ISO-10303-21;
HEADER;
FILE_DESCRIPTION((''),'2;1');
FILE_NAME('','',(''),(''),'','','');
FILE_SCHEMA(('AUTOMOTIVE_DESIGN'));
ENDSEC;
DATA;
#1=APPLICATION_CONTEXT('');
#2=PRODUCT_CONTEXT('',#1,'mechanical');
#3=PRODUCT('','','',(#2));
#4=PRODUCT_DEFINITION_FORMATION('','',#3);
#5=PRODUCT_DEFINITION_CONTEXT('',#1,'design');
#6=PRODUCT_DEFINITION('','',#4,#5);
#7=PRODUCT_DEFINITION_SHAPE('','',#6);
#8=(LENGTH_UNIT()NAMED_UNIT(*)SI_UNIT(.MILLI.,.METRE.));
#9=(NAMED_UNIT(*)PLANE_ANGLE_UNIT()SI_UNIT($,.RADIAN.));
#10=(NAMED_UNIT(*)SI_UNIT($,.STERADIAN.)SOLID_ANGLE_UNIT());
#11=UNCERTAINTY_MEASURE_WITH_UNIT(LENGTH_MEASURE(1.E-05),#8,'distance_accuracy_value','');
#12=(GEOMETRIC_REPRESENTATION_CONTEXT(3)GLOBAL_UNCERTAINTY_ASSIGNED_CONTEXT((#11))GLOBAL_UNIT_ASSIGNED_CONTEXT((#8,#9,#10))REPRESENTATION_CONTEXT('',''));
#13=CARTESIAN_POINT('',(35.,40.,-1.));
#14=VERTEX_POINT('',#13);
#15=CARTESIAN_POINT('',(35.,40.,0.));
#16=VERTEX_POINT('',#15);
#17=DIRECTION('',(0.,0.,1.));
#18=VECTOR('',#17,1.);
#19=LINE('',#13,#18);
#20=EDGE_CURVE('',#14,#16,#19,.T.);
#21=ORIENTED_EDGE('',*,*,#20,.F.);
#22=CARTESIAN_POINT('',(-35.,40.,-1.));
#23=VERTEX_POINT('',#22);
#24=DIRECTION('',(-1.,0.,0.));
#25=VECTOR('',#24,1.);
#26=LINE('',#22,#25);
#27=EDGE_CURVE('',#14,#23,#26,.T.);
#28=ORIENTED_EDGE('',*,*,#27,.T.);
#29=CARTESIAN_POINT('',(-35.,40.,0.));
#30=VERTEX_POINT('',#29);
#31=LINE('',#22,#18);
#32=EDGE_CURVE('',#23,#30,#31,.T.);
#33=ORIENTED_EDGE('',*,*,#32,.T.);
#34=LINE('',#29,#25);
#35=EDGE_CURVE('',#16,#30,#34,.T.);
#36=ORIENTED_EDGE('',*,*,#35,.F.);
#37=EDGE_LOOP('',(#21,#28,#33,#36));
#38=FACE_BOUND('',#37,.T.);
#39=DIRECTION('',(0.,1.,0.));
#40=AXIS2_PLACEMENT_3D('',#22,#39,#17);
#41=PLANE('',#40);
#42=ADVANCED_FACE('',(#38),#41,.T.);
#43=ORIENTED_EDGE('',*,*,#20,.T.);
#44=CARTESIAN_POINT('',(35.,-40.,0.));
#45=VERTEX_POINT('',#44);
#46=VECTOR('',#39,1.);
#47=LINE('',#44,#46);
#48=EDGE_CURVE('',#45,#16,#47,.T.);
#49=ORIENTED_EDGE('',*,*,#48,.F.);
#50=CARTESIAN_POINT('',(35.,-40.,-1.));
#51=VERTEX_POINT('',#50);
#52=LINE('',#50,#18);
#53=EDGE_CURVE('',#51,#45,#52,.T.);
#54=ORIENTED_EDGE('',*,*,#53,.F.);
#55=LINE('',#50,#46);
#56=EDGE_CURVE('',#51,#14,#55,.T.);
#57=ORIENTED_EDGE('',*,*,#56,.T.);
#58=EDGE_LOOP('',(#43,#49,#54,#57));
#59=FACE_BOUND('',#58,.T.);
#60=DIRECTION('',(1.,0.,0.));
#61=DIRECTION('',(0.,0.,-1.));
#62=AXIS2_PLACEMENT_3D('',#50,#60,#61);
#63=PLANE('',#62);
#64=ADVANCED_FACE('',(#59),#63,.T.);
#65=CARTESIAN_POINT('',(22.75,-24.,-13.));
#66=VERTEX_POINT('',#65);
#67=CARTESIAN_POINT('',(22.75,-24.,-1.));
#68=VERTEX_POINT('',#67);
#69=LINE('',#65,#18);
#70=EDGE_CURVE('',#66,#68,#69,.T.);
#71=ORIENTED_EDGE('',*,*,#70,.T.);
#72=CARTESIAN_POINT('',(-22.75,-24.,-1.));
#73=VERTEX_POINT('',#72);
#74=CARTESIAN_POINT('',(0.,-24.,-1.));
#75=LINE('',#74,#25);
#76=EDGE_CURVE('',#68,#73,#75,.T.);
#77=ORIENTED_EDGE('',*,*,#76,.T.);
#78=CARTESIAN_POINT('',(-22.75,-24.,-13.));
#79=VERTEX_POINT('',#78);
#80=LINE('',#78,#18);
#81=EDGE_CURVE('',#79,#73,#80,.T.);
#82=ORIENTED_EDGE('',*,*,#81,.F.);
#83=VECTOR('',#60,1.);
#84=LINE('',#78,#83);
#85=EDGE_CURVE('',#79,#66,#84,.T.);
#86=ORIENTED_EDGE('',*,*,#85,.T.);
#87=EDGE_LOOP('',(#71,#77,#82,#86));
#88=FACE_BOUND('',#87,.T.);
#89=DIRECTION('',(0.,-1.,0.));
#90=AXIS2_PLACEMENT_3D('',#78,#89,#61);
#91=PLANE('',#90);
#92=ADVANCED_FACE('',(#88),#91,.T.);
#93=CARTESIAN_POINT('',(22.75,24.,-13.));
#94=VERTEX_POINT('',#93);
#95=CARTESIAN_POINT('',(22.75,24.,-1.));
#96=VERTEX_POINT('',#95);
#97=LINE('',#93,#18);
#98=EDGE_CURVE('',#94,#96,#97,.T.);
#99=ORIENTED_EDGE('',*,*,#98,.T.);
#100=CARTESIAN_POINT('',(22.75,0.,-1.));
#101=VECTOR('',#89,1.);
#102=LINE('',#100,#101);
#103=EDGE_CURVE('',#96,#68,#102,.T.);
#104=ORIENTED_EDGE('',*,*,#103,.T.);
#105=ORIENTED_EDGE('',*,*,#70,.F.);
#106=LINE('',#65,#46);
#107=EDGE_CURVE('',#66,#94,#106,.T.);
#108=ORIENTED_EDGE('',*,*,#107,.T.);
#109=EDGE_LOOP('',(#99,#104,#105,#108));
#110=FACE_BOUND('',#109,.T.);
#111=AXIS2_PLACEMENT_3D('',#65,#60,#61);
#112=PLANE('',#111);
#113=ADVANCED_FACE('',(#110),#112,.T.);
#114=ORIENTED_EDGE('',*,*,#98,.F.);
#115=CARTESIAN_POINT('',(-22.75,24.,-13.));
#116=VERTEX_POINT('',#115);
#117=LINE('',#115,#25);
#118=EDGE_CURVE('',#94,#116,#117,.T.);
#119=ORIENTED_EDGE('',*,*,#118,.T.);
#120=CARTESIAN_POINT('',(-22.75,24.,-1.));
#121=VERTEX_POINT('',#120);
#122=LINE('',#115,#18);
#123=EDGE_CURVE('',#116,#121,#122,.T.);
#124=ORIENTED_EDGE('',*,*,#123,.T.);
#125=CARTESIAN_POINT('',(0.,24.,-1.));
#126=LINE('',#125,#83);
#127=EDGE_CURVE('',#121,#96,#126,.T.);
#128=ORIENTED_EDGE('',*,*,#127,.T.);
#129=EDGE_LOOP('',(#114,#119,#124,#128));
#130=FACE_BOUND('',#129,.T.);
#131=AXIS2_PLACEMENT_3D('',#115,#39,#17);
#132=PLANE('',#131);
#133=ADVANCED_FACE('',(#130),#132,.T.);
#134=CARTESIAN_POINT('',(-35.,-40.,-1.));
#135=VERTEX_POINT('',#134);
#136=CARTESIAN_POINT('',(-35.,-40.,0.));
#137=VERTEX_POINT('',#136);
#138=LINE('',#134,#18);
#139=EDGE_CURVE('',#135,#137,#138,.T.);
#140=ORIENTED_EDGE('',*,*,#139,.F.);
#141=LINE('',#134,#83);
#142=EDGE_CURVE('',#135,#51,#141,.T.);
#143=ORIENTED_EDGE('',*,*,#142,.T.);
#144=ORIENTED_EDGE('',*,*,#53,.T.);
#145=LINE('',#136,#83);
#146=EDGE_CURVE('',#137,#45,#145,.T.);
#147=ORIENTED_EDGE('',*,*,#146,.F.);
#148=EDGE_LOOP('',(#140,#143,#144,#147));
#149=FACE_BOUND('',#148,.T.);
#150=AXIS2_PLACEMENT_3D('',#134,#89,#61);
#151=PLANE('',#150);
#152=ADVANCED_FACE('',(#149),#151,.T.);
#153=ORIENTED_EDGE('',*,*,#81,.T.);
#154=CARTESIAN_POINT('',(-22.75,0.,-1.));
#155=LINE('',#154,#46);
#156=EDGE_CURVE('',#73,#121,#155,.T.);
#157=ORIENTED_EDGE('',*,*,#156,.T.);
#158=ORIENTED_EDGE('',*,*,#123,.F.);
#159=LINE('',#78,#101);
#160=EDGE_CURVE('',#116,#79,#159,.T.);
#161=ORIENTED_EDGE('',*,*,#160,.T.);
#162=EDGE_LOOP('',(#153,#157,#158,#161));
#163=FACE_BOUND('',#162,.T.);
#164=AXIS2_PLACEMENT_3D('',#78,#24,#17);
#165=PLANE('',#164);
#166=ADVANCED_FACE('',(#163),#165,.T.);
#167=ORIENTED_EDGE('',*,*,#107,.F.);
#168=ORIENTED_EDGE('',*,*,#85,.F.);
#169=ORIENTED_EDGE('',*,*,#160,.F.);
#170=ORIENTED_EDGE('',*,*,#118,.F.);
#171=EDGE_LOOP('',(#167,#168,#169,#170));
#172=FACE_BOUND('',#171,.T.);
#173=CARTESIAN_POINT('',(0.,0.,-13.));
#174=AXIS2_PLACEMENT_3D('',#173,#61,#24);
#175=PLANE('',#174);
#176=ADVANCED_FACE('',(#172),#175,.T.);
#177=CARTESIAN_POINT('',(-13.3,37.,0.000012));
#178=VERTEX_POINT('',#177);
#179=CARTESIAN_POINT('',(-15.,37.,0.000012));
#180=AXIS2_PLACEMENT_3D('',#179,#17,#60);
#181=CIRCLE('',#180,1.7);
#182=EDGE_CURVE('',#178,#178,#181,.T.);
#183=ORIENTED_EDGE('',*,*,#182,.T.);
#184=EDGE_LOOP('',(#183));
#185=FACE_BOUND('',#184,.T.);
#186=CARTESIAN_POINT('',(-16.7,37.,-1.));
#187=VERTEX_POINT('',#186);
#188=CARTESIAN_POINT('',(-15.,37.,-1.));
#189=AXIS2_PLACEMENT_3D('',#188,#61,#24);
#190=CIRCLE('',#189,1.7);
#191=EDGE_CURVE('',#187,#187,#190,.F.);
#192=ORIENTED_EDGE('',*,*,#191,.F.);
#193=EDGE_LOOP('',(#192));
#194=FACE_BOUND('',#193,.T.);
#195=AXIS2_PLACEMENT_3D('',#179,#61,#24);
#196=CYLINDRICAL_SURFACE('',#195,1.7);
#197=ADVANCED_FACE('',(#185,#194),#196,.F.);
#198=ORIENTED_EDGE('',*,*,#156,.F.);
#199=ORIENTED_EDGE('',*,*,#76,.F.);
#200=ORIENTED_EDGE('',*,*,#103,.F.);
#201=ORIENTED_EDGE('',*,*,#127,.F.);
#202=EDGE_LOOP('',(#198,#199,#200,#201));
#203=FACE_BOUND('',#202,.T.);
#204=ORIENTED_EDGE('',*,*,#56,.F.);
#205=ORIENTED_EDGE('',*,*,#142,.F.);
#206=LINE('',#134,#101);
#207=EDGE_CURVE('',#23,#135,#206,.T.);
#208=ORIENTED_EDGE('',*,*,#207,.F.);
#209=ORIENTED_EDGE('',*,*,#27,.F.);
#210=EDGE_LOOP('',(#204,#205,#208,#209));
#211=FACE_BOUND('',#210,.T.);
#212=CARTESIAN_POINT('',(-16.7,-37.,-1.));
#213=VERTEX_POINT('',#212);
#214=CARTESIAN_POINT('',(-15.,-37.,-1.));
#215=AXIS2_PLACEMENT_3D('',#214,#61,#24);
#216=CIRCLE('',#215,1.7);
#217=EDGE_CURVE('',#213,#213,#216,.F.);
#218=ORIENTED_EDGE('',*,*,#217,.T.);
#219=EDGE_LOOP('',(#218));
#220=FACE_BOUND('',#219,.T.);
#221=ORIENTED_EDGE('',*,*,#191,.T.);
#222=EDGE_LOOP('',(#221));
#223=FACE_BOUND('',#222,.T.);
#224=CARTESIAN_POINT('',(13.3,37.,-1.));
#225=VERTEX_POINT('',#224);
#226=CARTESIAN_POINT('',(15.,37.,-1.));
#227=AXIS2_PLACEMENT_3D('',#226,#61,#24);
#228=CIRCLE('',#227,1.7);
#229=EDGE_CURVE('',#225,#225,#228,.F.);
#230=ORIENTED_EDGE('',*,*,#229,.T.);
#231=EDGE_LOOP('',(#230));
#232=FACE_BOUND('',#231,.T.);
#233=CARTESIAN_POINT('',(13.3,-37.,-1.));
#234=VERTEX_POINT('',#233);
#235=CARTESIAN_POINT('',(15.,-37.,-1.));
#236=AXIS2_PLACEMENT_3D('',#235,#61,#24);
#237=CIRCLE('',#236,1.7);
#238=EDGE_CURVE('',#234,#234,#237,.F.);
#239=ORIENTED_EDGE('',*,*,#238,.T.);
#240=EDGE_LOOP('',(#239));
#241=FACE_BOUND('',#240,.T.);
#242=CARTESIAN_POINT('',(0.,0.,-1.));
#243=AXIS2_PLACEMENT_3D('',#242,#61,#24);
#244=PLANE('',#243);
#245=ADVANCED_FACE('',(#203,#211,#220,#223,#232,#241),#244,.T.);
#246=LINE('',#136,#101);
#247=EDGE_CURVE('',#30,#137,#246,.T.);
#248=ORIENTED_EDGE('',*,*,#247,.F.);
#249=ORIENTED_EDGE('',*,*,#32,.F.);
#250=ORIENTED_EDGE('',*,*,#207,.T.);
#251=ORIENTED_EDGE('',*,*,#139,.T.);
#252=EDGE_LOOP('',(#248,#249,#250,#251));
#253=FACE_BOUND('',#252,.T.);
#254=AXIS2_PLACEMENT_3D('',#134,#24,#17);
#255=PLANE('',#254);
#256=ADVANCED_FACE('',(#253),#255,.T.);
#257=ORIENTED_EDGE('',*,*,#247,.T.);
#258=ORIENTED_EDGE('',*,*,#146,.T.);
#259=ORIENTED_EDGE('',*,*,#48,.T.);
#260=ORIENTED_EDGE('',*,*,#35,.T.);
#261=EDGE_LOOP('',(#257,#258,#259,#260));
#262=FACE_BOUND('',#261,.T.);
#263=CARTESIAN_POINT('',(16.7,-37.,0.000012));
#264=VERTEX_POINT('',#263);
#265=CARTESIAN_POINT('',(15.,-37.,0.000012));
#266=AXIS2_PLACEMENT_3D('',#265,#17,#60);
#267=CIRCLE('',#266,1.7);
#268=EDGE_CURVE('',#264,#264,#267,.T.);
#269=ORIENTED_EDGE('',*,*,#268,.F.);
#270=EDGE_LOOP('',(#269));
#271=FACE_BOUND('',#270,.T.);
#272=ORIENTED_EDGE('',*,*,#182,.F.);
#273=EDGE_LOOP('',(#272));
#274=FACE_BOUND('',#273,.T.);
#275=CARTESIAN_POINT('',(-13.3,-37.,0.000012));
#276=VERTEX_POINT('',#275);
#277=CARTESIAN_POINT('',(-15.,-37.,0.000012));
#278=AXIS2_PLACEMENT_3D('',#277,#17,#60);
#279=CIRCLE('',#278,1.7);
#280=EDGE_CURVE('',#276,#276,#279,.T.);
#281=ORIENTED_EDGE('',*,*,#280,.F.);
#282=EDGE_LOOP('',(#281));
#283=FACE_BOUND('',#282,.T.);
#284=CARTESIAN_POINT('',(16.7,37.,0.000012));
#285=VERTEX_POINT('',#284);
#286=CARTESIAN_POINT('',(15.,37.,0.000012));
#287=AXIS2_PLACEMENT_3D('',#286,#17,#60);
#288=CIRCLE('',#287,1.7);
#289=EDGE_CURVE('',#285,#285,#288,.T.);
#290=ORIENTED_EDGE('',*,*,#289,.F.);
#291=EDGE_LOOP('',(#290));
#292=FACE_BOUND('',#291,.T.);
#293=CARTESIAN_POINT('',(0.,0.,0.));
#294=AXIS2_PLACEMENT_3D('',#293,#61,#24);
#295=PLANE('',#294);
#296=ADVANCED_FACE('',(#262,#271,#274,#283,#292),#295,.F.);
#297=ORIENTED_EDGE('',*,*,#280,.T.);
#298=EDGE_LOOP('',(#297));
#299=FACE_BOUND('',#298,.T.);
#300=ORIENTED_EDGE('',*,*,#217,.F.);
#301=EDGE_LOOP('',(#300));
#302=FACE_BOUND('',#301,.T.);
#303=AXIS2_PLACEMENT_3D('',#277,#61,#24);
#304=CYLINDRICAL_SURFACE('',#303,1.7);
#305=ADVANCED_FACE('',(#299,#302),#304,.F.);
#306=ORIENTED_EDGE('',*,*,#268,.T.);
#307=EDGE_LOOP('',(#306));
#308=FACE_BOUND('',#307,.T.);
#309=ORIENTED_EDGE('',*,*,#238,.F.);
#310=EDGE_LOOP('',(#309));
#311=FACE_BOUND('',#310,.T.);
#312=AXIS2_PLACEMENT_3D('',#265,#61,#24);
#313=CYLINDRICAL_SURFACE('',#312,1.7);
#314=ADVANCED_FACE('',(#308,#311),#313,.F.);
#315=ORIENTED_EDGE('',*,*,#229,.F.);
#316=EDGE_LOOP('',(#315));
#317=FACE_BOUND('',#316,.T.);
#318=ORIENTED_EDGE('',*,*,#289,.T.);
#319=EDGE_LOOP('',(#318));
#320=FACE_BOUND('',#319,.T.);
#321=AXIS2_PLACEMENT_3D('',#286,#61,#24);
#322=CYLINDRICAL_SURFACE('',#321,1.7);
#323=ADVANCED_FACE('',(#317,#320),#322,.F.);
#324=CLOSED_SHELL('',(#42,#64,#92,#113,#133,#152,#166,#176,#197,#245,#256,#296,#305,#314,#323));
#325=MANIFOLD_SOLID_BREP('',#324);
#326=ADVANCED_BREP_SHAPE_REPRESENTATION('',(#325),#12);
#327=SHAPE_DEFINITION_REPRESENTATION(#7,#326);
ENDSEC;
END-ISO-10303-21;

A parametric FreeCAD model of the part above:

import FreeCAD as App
import Part
import Sketcher
from FreeCAD import Vector

doc = App.newDocument("Part")
params = doc.addObject("Spreadsheet::Sheet", "Params")
for row, (alias, value) in enumerate([
    ("sketch1_width", "70 mm"),
    ("sketch1_height", "80 mm"),
    ("pad1_length", "1 mm"),
    ("sketch2_height", "48 mm"),
    ("sketch2_width", "45.5 mm"),
    ("pad2_length", "13 mm"),
    ("sketch3_diameter", "3.4 mm"),
], start=1):
    params.set(f"A{row}", alias)
    params.set(f"B{row}", "=" + value)
    params.setAlias(f"B{row}", alias)

body = doc.addObject("PartDesign::Body", "Body")

# Sketch on XY plane
sketch1 = body.newObject("Sketcher::SketchObject", "Sketch")
sketch1.AttachmentSupport = (doc.getObject("XY_Plane"), [""])
sketch1.MapMode = "FlatFace"
sketch1.addGeometry([
    Part.LineSegment(Vector(-35, 40, 0), Vector(-35, -40, 0)),
    Part.LineSegment(Vector(-35, -40, 0), Vector(35, -40, 0)),
    Part.LineSegment(Vector(35, -40, 0), Vector(35, 40, 0)),
    Part.LineSegment(Vector(35, 40, 0), Vector(-35, 40, 0)),
], False)
sketch1.addConstraint([
    Sketcher.Constraint("Coincident", 0, 2, 1, 1),
    Sketcher.Constraint("Coincident", 1, 2, 2, 1),
    Sketcher.Constraint("Coincident", 2, 2, 3, 1),
    Sketcher.Constraint("Coincident", 3, 2, 0, 1),
    Sketcher.Constraint("Vertical", 0),
    Sketcher.Constraint("Horizontal", 1),
    Sketcher.Constraint("Vertical", 2),
    Sketcher.Constraint("Horizontal", 3),
    Sketcher.Constraint("Symmetric", 0, 2, 2, 2, -1, 1),
    Sketcher.Constraint("DistanceX", 1, 1, 1, 2, 70.0),
    Sketcher.Constraint("DistanceY", 0, 2, 0, 1, 80.0),
])
sketch1.setExpression("Constraints[9]", "Params.sketch1_width")
sketch1.setExpression("Constraints[10]", "Params.sketch1_height")
pad1 = body.newObject("PartDesign::Pad", "Pad")
pad1.Profile = sketch1
pad1.setExpression("Length", "Params.pad1_length")
pad1.Reversed = True

# Sketch on XY plane
sketch2 = body.newObject("Sketcher::SketchObject", "Sketch001")
sketch2.AttachmentSupport = (doc.getObject("XY_Plane"), [""])
sketch2.MapMode = "FlatFace"
sketch2.addGeometry([
    Part.LineSegment(Vector(-23, 24, 0), Vector(-23, -24, 0)),
    Part.LineSegment(Vector(-23, -24, 0), Vector(23, -24, 0)),
    Part.LineSegment(Vector(23, -24, 0), Vector(23, 24, 0)),
    Part.LineSegment(Vector(23, 24, 0), Vector(-23, 24, 0)),
], False)
sketch2.addConstraint([
    Sketcher.Constraint("Coincident", 0, 2, 1, 1),
    Sketcher.Constraint("Coincident", 1, 2, 2, 1),
    Sketcher.Constraint("Coincident", 2, 2, 3, 1),
    Sketcher.Constraint("Coincident", 3, 2, 0, 1),
    Sketcher.Constraint("Vertical", 0),
    Sketcher.Constraint("Horizontal", 1),
    Sketcher.Constraint("Vertical", 2),
    Sketcher.Constraint("Horizontal", 3),
    Sketcher.Constraint("Symmetric", 0, 2, 2, 2, -1, 1),
    Sketcher.Constraint("DistanceY", 0, 2, 0, 1, 48.0),
    Sketcher.Constraint("DistanceX", 1, 1, 1, 2, 45.5),
])
sketch2.setExpression("Constraints[9]", "Params.sketch2_height")
sketch2.setExpression("Constraints[10]", "Params.sketch2_width")
pad2 = body.newObject("PartDesign::Pad", "Pad001")
pad2.Profile = sketch2
pad2.setExpression("Length", "Params.pad2_length")
pad2.Reversed = True

# Sketch on XY plane
sketch3 = body.newObject("Sketcher::SketchObject", "Sketch002")
sketch3.AttachmentSupport = (doc.getObject("XY_Plane"), [""])
sketch3.MapMode = "FlatFace"
sketch3.addGeometry([
    Part.Circle(Vector(-15, -37, 0), Vector(0, 0, 1), 1.7),
    Part.Circle(Vector(-15, 37, 0), Vector(0, 0, 1), 1.7),
    Part.Circle(Vector(15, -37, 0), Vector(0, 0, 1), 1.7),
    Part.Circle(Vector(15, 37, 0), Vector(0, 0, 1), 1.7),
], False)
sketch3.addConstraint([
    Sketcher.Constraint("Equal", 0, 1),
    Sketcher.Constraint("Equal", 1, 2),
    Sketcher.Constraint("Equal", 2, 3),
    Sketcher.Constraint("Symmetric", 1, 3, 2, 3, -1, 1),
    Sketcher.Constraint("Symmetric", 0, 3, 3, 3, -1, 1),
    Sketcher.Constraint("Symmetric", 0, 3, 2, 3, -2),
    Sketcher.Constraint("Diameter", 0, 3.4),
    Sketcher.Constraint("DistanceX", 0, 3, -1, 1, 15.0),
    Sketcher.Constraint("DistanceY", 0, 3, -1, 1, 37.0),
])
sketch3.setExpression("Constraints[6]", "Params.sketch3_diameter")
pocket1 = body.newObject("PartDesign::Pocket", "Pocket")
pocket1.Profile = sketch3
pocket1.Type = "ThroughAll"
pocket1.Midplane = True

doc.recompute()
